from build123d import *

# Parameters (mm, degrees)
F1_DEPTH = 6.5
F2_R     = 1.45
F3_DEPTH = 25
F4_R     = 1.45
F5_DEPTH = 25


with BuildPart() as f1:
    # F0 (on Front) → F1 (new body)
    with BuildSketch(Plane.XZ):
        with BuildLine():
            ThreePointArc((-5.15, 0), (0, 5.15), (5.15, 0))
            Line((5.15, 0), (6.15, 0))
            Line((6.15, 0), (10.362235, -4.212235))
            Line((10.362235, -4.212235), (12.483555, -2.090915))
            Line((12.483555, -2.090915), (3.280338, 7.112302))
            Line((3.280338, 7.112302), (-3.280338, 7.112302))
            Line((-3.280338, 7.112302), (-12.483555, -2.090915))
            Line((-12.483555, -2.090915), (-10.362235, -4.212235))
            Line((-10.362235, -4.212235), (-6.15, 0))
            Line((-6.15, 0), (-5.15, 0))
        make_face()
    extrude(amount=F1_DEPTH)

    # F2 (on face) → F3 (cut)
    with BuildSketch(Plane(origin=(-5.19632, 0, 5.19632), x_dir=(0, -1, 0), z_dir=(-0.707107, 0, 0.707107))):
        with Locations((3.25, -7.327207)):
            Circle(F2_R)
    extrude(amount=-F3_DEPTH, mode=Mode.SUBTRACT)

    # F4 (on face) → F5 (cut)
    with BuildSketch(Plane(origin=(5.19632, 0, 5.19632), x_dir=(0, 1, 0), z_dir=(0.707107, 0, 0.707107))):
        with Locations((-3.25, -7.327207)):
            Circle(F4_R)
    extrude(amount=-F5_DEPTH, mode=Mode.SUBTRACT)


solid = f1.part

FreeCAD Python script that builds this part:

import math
import FreeCAD as App
import Part
import Sketcher
from FreeCAD import Vector
Q = App.Units.Quantity

doc = App.newDocument("Part")
body = doc.addObject("PartDesign::Body", "Body")

sketch1 = body.newObject("Sketcher::SketchObject", "Sketch")
sketch1.AttachmentSupport = (doc.getObject("XZ_Plane"), [""])
sketch1.MapMode = "FlatFace"
sketch1.addGeometry([
    Part.ArcOfCircle(Part.Circle(Vector(0, 0, 0), Vector(0, 0, 1), 5.2), math.radians(0), math.radians(180)),
    Part.LineSegment(Vector(5.2, 0, 0), Vector(6.2, 0, 0)),
    Part.LineSegment(Vector(6.2, 0, 0), Vector(10.4, -4.2, 0)),
    Part.LineSegment(Vector(10.4, -4.2, 0), Vector(12.5, -2.1, 0)),
    Part.LineSegment(Vector(12.5, -2.1, 0), Vector(3.3, 7.1, 0)),
    Part.LineSegment(Vector(3.3, 7.1, 0), Vector(-3.3, 7.1, 0)),
    Part.LineSegment(Vector(-3.3, 7.1, 0), Vector(-12.5, -2.1, 0)),
    Part.LineSegment(Vector(-12.5, -2.1, 0), Vector(-10.4, -4.2, 0)),
    Part.LineSegment(Vector(-10.4, -4.2, 0), Vector(-6.2, 0, 0)),
    Part.LineSegment(Vector(-6.2, 0, 0), Vector(-5.2, 0, 0)),
], False)
sketch1.addConstraint([
    Sketcher.Constraint("Coincident", 0, 1, 1, 1),
    Sketcher.Constraint("Coincident", 1, 2, 2, 1),
    Sketcher.Constraint("Coincident", 2, 2, 3, 1),
    Sketcher.Constraint("Coincident", 3, 2, 4, 1),
    Sketcher.Constraint("Coincident", 4, 2, 5, 1),
    Sketcher.Constraint("Coincident", 5, 2, 6, 1),
    Sketcher.Constraint("Coincident", 6, 2, 7, 1),
    Sketcher.Constraint("Coincident", 7, 2, 8, 1),
    Sketcher.Constraint("Coincident", 8, 2, 9, 1),
    Sketcher.Constraint("Coincident", 9, 2, 0, 2),
    Sketcher.Constraint("Horizontal", 1),
    Sketcher.Constraint("Horizontal", 5),
    Sketcher.Constraint("Horizontal", 9),
    Sketcher.Constraint("Coincident", 0, 3, -1, 1),
    Sketcher.Constraint("Symmetric", 1, 2, 8, 2, -1, 1),
    Sketcher.Constraint("Symmetric", 3, 2, 6, 2, -2),
    Sketcher.Constraint("Symmetric", 2, 2, 7, 2, -2),
    Sketcher.Constraint("PointOnObject", 0, 1, -1),
    Sketcher.Constraint("Perpendicular", 2, 3),
    Sketcher.Constraint("Perpendicular", 3, 4),
    Sketcher.Constraint("Perpendicular", 4, 6),
    Sketcher.Constraint("Perpendicular", 6, 7),
    Sketcher.Constraint("DistanceX", 1, 1, 1, 2, Q("1 mm")),
    Sketcher.Constraint("Radius", 0, Q("5.15 mm")),
    Sketcher.Constraint("Distance", 3, Q("3 mm")),
    Sketcher.Constraint("Distance", 2, Q("5.957 mm")),
    Sketcher.Constraint("DistanceY", -1, 1, 4, 2, Q("7.112302 mm")),
])
pad1 = body.newObject("PartDesign::Pad", "Pad")
pad1.Profile = sketch1
pad1.Length = 6.5

sketch2 = body.newObject("Sketcher::SketchObject", "Sketch001")
sketch2.Placement = App.Placement(Vector(-5.19632, 0, 5.19632), App.Rotation(Vector(0, -1, 0), Vector(0.707106781, 0, 0.707106781), Vector(-0.707106781, 0, 0.707106781), "ZXY"))
sketch2.addGeometry(Part.Circle(Vector(3.2, -7.3, 0), Vector(0, 0, 1), 1.4), False)
sketch2.addConstraint([
    Sketcher.Constraint("Diameter", 0, Q("2.9 mm")),
    Sketcher.Constraint("DistanceX", -1, 1, 0, 3, Q("3.25 mm")),
    Sketcher.Constraint("DistanceY", 0, 3, -1, 1, Q("7.327207 mm")),
])
pocket1 = body.newObject("PartDesign::Pocket", "Pocket")
pocket1.Profile = sketch2
pocket1.Length = 25

sketch3 = body.newObject("Sketcher::SketchObject", "Sketch002")
sketch3.Placement = App.Placement(Vector(5.19632, 0, 5.19632), App.Rotation(Vector(0, 1, 0), Vector(-0.707106781, 0, 0.707106781), Vector(0.707106781, 0, 0.707106781), "ZXY"))
sketch3.addGeometry(Part.Circle(Vector(-3.2, -7.3, 0), Vector(0, 0, 1), 1.4), False)
sketch3.addConstraint([
    Sketcher.Constraint("Diameter", 0, Q("2.9 mm")),
    Sketcher.Constraint("DistanceX", 0, 3, -1, 1, Q("3.25 mm")),
    Sketcher.Constraint("DistanceY", 0, 3, -1, 1, Q("7.327207 mm")),
])
pocket2 = body.newObject("PartDesign::Pocket", "Pocket001")
pocket2.Profile = sketch3
pocket2.Length = 25

doc.recompute()
